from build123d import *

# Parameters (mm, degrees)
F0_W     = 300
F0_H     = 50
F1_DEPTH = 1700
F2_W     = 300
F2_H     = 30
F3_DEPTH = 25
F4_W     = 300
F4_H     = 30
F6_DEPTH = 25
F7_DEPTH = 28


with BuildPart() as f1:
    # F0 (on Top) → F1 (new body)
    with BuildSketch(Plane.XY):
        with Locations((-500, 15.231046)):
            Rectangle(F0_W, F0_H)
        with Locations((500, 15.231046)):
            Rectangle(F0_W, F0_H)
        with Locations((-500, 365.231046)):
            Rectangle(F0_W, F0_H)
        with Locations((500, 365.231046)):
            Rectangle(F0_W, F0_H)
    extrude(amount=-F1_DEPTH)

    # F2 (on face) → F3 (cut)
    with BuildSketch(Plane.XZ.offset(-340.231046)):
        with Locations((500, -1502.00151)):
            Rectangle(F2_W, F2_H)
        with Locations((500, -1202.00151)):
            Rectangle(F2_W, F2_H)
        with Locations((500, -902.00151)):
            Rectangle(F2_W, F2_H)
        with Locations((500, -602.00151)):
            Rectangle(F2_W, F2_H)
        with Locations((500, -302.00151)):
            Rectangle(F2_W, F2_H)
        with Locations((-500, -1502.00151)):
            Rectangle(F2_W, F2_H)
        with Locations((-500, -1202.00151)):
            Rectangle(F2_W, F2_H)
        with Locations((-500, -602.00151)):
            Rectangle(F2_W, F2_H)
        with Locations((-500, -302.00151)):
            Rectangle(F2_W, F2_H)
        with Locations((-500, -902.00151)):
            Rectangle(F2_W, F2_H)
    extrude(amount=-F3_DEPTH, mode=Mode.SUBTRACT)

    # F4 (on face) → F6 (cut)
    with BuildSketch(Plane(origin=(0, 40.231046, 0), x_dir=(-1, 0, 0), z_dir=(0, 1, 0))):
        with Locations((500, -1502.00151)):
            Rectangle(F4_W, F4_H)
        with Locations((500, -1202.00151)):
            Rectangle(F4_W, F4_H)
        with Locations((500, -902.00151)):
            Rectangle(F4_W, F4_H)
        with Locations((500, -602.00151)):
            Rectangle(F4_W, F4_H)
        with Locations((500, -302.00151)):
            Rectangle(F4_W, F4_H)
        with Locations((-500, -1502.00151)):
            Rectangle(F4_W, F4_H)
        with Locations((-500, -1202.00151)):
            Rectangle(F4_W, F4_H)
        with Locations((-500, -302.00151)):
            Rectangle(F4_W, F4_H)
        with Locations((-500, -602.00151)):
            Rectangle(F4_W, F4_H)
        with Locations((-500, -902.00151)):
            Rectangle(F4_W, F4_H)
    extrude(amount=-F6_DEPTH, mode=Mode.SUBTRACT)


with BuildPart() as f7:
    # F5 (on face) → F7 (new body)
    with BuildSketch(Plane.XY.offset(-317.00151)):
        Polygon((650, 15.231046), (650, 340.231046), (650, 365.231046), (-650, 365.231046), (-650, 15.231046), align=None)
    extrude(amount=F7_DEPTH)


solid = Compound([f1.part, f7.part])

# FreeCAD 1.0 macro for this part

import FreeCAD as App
import Part
import Sketcher
from FreeCAD import Vector
Q = App.Units.Quantity


def add_polygon(sketch, points):
    """Adds a closed chain of lines whose ends are joined by coincident constraints."""
    first, n = sketch.GeometryCount, len(points)
    for a, b in zip(points, points[1:] + points[:1]):
        sketch.addGeometry(Part.LineSegment(App.Vector(*a, 0), App.Vector(*b, 0)), False)
    for i in range(n):
        sketch.addConstraint(Sketcher.Constraint("Coincident", first + i, 2, first + (i + 1) % n, 1))

doc = App.newDocument("Part")
body = doc.addObject("PartDesign::Body", "Body")
body.AllowCompound = True

# Sketch on XY plane
sketch1 = doc.addObject("Sketcher::SketchObject", "Sketch")
body.addObject(sketch1)
sketch1.AttachmentSupport = (doc.XY_Plane, [""])
sketch1.MapMode = "FlatFace"
add_polygon(sketch1, [(-650, 40), (-650, -10), (-350, -10), (-350, 40)])  # lines 0-3
add_polygon(sketch1, [(350, 40), (350, -10), (650, -10), (650, 40)])  # lines 4-7
add_polygon(sketch1, [(-650, 390), (-650, 340), (-350, 340), (-350, 390)])  # lines 8-11
add_polygon(sketch1, [(350, 390), (350, 340), (650, 340), (650, 390)])  # lines 12-15
sketch1.addConstraint([
    Sketcher.Constraint("Vertical", 0),
    Sketcher.Constraint("Horizontal", 1),
    Sketcher.Constraint("Vertical", 2),
    Sketcher.Constraint("Horizontal", 3),
    Sketcher.Constraint("Vertical", 4),
    Sketcher.Constraint("Horizontal", 5),
    Sketcher.Constraint("Vertical", 6),
    Sketcher.Constraint("Horizontal", 7),
    Sketcher.Constraint("Vertical", 8),
    Sketcher.Constraint("Horizontal", 9),
    Sketcher.Constraint("Vertical", 10),
    Sketcher.Constraint("Horizontal", 11),
    Sketcher.Constraint("Vertical", 12),
    Sketcher.Constraint("Horizontal", 13),
    Sketcher.Constraint("Vertical", 14),
    Sketcher.Constraint("Horizontal", 15),
    Sketcher.Constraint("Symmetric", 1, 2, 4, 2, -2),
    Sketcher.Constraint("Symmetric", 3, 2, 6, 2, -2),
    Sketcher.Constraint("Symmetric", 9, 2, 12, 2, -2),
    Sketcher.Constraint("Symmetric", 11, 2, 14, 2, -2),
    Sketcher.Constraint("Vertical", 3, 2, 8, 2),
    Sketcher.Constraint("Vertical", 2, 2, 9, 2),
    Sketcher.Constraint("Equal", 6, 8),
    Sketcher.Constraint("DistanceX", 1, 1, 1, 2, Q("300 mm")),
    Sketcher.Constraint("DistanceY", 0, 2, 0, 1, Q("50 mm")),
    Sketcher.Constraint("DistanceX", 0, 2, -1, 1, Q("650 mm")),
    Sketcher.Constraint("DistanceY", 3, 2, 8, 2, Q("300 mm")),
    Sketcher.Constraint("DistanceY", 0, 2, -1, 1, Q("9.768954 mm")),
])
pad1 = doc.addObject("PartDesign::Pad", "Pad")
body.addObject(pad1)
pad1.Profile = sketch1
pad1.Length = 1700
pad1.Reversed = True

# Sketch on XZ plane
sketch2 = doc.addObject("Sketcher::SketchObject", "Sketch001")
body.addObject(sketch2)
sketch2.AttachmentSupport = (doc.XZ_Plane, [""])
sketch2.MapMode = "FlatFace"
sketch2.AttachmentOffset = App.Placement(Vector(0, 0, -340.231046), App.Rotation())
add_polygon(sketch2, [(350, -1487), (350, -1517), (650, -1517), (650, -1487)])  # lines 0-3
add_polygon(sketch2, [(350, -1187), (350, -1217), (650, -1217), (650, -1187)])  # lines 4-7
add_polygon(sketch2, [(350, -887), (350, -917), (650, -917), (650, -887)])  # lines 8-11
add_polygon(sketch2, [(350, -587), (350, -617), (650, -617), (650, -587)])  # lines 12-15
add_polygon(sketch2, [(350, -287), (350, -317), (650, -317), (650, -287)])  # lines 16-19
add_polygon(sketch2, [(-650, -1487), (-650, -1517), (-350, -1517), (-350, -1487)])  # lines 20-23
add_polygon(sketch2, [(-650, -1187), (-650, -1217), (-350, -1217), (-350, -1187)])  # lines 24-27
add_polygon(sketch2, [(-650, -587), (-650, -617), (-350, -617), (-350, -587)])  # lines 28-31
add_polygon(sketch2, [(-650, -287), (-650, -317), (-350, -317), (-350, -287)])  # lines 32-35
add_polygon(sketch2, [(-650, -887), (-650, -917), (-350, -917), (-350, -887)])  # lines 36-39
sketch2.addConstraint([
    Sketcher.Constraint("Vertical", 0),
    Sketcher.Constraint("Horizontal", 1),
    Sketcher.Constraint("Vertical", 2),
    Sketcher.Constraint("Horizontal", 3),
    Sketcher.Constraint("Vertical", 4),
    Sketcher.Constraint("Horizontal", 5),
    Sketcher.Constraint("Vertical", 6),
    Sketcher.Constraint("Horizontal", 7),
    Sketcher.Constraint("Vertical", 8),
    Sketcher.Constraint("Horizontal", 9),
    Sketcher.Constraint("Vertical", 10),
    Sketcher.Constraint("Horizontal", 11),
    Sketcher.Constraint("Vertical", 12),
    Sketcher.Constraint("Horizontal", 13),
    Sketcher.Constraint("Vertical", 14),
    Sketcher.Constraint("Horizontal", 15),
    Sketcher.Constraint("Vertical", 16),
    Sketcher.Constraint("Horizontal", 17),
    Sketcher.Constraint("Vertical", 18),
    Sketcher.Constraint("Horizontal", 19),
    Sketcher.Constraint("Vertical", 20),
    Sketcher.Constraint("Horizontal", 21),
    Sketcher.Constraint("Vertical", 22),
    Sketcher.Constraint("Horizontal", 23),
    Sketcher.Constraint("Vertical", 24),
    Sketcher.Constraint("Horizontal", 25),
    Sketcher.Constraint("Vertical", 26),
    Sketcher.Constraint("Horizontal", 27),
    Sketcher.Constraint("Vertical", 28),
    Sketcher.Constraint("Horizontal", 29),
    Sketcher.Constraint("Vertical", 30),
    Sketcher.Constraint("Horizontal", 31),
    Sketcher.Constraint("Vertical", 32),
    Sketcher.Constraint("Horizontal", 33),
    Sketcher.Constraint("Vertical", 34),
    Sketcher.Constraint("Horizontal", 35),
    Sketcher.Constraint("Vertical", 36),
    Sketcher.Constraint("Horizontal", 37),
    Sketcher.Constraint("Vertical", 38),
    Sketcher.Constraint("Horizontal", 39),
    Sketcher.Constraint("Symmetric", 1, 2, 20, 2, -2),
    Sketcher.Constraint("Symmetric", 3, 2, 22, 2, -2),
    Sketcher.Constraint("Symmetric", 5, 2, 24, 2, -2),
    Sketcher.Constraint("Symmetric", 7, 2, 26, 2, -2),
    Sketcher.Constraint("Symmetric", 13, 2, 28, 2, -2),
    Sketcher.Constraint("Symmetric", 15, 2, 30, 2, -2),
    Sketcher.Constraint("Symmetric", 17, 2, 32, 2, -2),
    Sketcher.Constraint("Symmetric", 19, 2, 34, 2, -2),
    Sketcher.Constraint("Symmetric", 9, 2, 36, 2, -2),
    Sketcher.Constraint("Symmetric", 11, 2, 38, 2, -2),
    Sketcher.Constraint("Vertical", 3, 2, 4, 2),
    Sketcher.Constraint("Vertical", 2, 2, 5, 2),
    Sketcher.Constraint("Vertical", 7, 2, 8, 2),
    Sketcher.Constraint("Vertical", 6, 2, 9, 2),
    Sketcher.Constraint("Vertical", 11, 2, 12, 2),
    Sketcher.Constraint("Vertical", 10, 2, 13, 2),
    Sketcher.Constraint("Vertical", 15, 2, 16, 2),
    Sketcher.Constraint("Vertical", 14, 2, 17, 2),
    Sketcher.Constraint("Equal", 2, 4),
    Sketcher.Constraint("Equal", 6, 8),
    Sketcher.Constraint("Equal", 10, 12),
    Sketcher.Constraint("Equal", 14, 16),
    Sketcher.Constraint("DistanceX", 1, 1, 1, 2, Q("300 mm")),
    Sketcher.Constraint("DistanceY", 0, 2, 0, 1, Q("30 mm")),
    Sketcher.Constraint("DistanceX", -1, 1, 0, 2, Q("350 mm")),
    Sketcher.Constraint("DistanceY", 3, 2, 4, 2, Q("270 mm")),
    Sketcher.Constraint("DistanceY", 7, 2, 8, 2, Q("270 mm")),
    Sketcher.Constraint("DistanceY", 11, 2, 12, 2, Q("270 mm")),
    Sketcher.Constraint("DistanceY", 15, 2, 16, 2, Q("270 mm")),
    Sketcher.Constraint("DistanceY", 0, 2, -1, 1, Q("1517.00151 mm")),
])
pocket1 = doc.addObject("PartDesign::Pocket", "Pocket")
body.addObject(pocket1)
pocket1.Profile = sketch2
pocket1.Length = 25

# Sketch on XZ plane
sketch3 = doc.addObject("Sketcher::SketchObject", "Sketch002")
body.addObject(sketch3)
sketch3.AttachmentSupport = (doc.XZ_Plane, [""])
sketch3.MapMode = "FlatFace"
sketch3.AttachmentOffset = App.Placement(Vector(0, 0, -40.231046), App.Rotation())
add_polygon(sketch3, [(-350, -1487), (-350, -1517), (-650, -1517), (-650, -1487)])  # lines 0-3
add_polygon(sketch3, [(-350, -1187), (-350, -1217), (-650, -1217), (-650, -1187)])  # lines 4-7
add_polygon(sketch3, [(-350, -887), (-350, -917), (-650, -917), (-650, -887)])  # lines 8-11
add_polygon(sketch3, [(-350, -587), (-350, -617), (-650, -617), (-650, -587)])  # lines 12-15
add_polygon(sketch3, [(-350, -287), (-350, -317), (-650, -317), (-650, -287)])  # lines 16-19
add_polygon(sketch3, [(650, -1487), (650, -1517), (350, -1517), (350, -1487)])  # lines 20-23
add_polygon(sketch3, [(650, -1187), (650, -1217), (350, -1217), (350, -1187)])  # lines 24-27
add_polygon(sketch3, [(650, -287), (650, -317), (350, -317), (350, -287)])  # lines 28-31
add_polygon(sketch3, [(650, -587), (650, -617), (350, -617), (350, -587)])  # lines 32-35
add_polygon(sketch3, [(650, -887), (650, -917), (350, -917), (350, -887)])  # lines 36-39
sketch3.addConstraint([
    Sketcher.Constraint("Vertical", 0),
    Sketcher.Constraint("Horizontal", 1),
    Sketcher.Constraint("Vertical", 2),
    Sketcher.Constraint("Horizontal", 3),
    Sketcher.Constraint("Vertical", 4),
    Sketcher.Constraint("Horizontal", 5),
    Sketcher.Constraint("Vertical", 6),
    Sketcher.Constraint("Horizontal", 7),
    Sketcher.Constraint("Vertical", 8),
    Sketcher.Constraint("Horizontal", 9),
    Sketcher.Constraint("Vertical", 10),
    Sketcher.Constraint("Horizontal", 11),
    Sketcher.Constraint("Vertical", 12),
    Sketcher.Constraint("Horizontal", 13),
    Sketcher.Constraint("Vertical", 14),
    Sketcher.Constraint("Horizontal", 15),
    Sketcher.Constraint("Vertical", 16),
    Sketcher.Constraint("Horizontal", 17),
    Sketcher.Constraint("Vertical", 18),
    Sketcher.Constraint("Horizontal", 19),
    Sketcher.Constraint("Vertical", 20),
    Sketcher.Constraint("Horizontal", 21),
    Sketcher.Constraint("Vertical", 22),
    Sketcher.Constraint("Horizontal", 23),
    Sketcher.Constraint("Vertical", 24),
    Sketcher.Constraint("Horizontal", 25),
    Sketcher.Constraint("Vertical", 26),
    Sketcher.Constraint("Horizontal", 27),
    Sketcher.Constraint("Vertical", 28),
    Sketcher.Constraint("Horizontal", 29),
    Sketcher.Constraint("Vertical", 30),
    Sketcher.Constraint("Horizontal", 31),
    Sketcher.Constraint("Vertical", 32),
    Sketcher.Constraint("Horizontal", 33),
    Sketcher.Constraint("Vertical", 34),
    Sketcher.Constraint("Horizontal", 35),
    Sketcher.Constraint("Vertical", 36),
    Sketcher.Constraint("Horizontal", 37),
    Sketcher.Constraint("Vertical", 38),
    Sketcher.Constraint("Horizontal", 39),
    Sketcher.Constraint("Symmetric", 1, 2, 20, 2, -2),
    Sketcher.Constraint("Symmetric", 3, 2, 22, 2, -2),
    Sketcher.Constraint("Symmetric", 5, 2, 24, 2, -2),
    Sketcher.Constraint("Symmetric", 7, 2, 26, 2, -2),
    Sketcher.Constraint("Symmetric", 17, 2, 28, 2, -2),
    Sketcher.Constraint("Symmetric", 19, 2, 30, 2, -2),
    Sketcher.Constraint("Symmetric", 13, 2, 32, 2, -2),
    Sketcher.Constraint("Symmetric", 15, 2, 34, 2, -2),
    Sketcher.Constraint("Symmetric", 9, 2, 36, 2, -2),
    Sketcher.Constraint("Symmetric", 11, 2, 38, 2, -2),
    Sketcher.Constraint("Vertical", 3, 2, 4, 2),
    Sketcher.Constraint("Vertical", 2, 2, 5, 2),
    Sketcher.Constraint("Vertical", 7, 2, 8, 2),
    Sketcher.Constraint("Vertical", 6, 2, 9, 2),
    Sketcher.Constraint("Vertical", 11, 2, 12, 2),
    Sketcher.Constraint("Vertical", 10, 2, 13, 2),
    Sketcher.Constraint("Vertical", 15, 2, 16, 2),
    Sketcher.Constraint("Vertical", 14, 2, 17, 2),
    Sketcher.Constraint("Equal", 2, 4),
    Sketcher.Constraint("Equal", 6, 8),
    Sketcher.Constraint("Equal", 10, 12),
    Sketcher.Constraint("Equal", 14, 16),
    Sketcher.Constraint("DistanceX", 1, 2, 1, 1, Q("300 mm")),
    Sketcher.Constraint("DistanceY", 0, 2, 0, 1, Q("30 mm")),
    Sketcher.Constraint("DistanceX", 0, 2, -1, 1, Q("350 mm")),
    Sketcher.Constraint("DistanceY", 3, 2, 4, 2, Q("270 mm")),
    Sketcher.Constraint("DistanceY", 7, 2, 8, 2, Q("270 mm")),
    Sketcher.Constraint("DistanceY", 11, 2, 12, 2, Q("270 mm")),
    Sketcher.Constraint("DistanceY", 15, 2, 16, 2, Q("270 mm")),
    Sketcher.Constraint("DistanceY", 0, 2, -1, 1, Q("1517.00151 mm")),
])
pocket2 = doc.addObject("PartDesign::Pocket", "Pocket001")
body.addObject(pocket2)
pocket2.Profile = sketch3
pocket2.Length = 25
pocket2.Reversed = True
body2 = doc.addObject("PartDesign::Body", "Body001")

# Sketch on XY plane
sketch4 = doc.addObject("Sketcher::SketchObject", "Sketch003")
body2.addObject(sketch4)
sketch4.AttachmentSupport = (doc.getObject("XY_Plane001"), [""])
sketch4.MapMode = "FlatFace"
sketch4.AttachmentOffset = App.Placement(Vector(0, 0, -317.00151), App.Rotation())
add_polygon(sketch4, [(650, 15), (650, 365), (-650, 365), (-650, 15)])  # lines 0-3
sketch4.addConstraint([
    Sketcher.Constraint("Vertical", 0),
    Sketcher.Constraint("Horizontal", 1),
    Sketcher.Constraint("Vertical", 2),
    Sketcher.Constraint("Horizontal", 3),
    Sketcher.Constraint("DistanceX", 1, 2, 1, 1, Q("1300 mm")),
    Sketcher.Constraint("DistanceY", 0, 1, 0, 2, Q("350 mm")),
    Sketcher.Constraint("DistanceX", -1, 1, 0, 2, Q("650 mm")),
    Sketcher.Constraint("DistanceY", -1, 1, 0, 2, Q("365.231046 mm")),
])
pad2 = doc.addObject("PartDesign::Pad", "Pad001")
body2.addObject(pad2)
pad2.Profile = sketch4
pad2.Length = 28

doc.recompute()
